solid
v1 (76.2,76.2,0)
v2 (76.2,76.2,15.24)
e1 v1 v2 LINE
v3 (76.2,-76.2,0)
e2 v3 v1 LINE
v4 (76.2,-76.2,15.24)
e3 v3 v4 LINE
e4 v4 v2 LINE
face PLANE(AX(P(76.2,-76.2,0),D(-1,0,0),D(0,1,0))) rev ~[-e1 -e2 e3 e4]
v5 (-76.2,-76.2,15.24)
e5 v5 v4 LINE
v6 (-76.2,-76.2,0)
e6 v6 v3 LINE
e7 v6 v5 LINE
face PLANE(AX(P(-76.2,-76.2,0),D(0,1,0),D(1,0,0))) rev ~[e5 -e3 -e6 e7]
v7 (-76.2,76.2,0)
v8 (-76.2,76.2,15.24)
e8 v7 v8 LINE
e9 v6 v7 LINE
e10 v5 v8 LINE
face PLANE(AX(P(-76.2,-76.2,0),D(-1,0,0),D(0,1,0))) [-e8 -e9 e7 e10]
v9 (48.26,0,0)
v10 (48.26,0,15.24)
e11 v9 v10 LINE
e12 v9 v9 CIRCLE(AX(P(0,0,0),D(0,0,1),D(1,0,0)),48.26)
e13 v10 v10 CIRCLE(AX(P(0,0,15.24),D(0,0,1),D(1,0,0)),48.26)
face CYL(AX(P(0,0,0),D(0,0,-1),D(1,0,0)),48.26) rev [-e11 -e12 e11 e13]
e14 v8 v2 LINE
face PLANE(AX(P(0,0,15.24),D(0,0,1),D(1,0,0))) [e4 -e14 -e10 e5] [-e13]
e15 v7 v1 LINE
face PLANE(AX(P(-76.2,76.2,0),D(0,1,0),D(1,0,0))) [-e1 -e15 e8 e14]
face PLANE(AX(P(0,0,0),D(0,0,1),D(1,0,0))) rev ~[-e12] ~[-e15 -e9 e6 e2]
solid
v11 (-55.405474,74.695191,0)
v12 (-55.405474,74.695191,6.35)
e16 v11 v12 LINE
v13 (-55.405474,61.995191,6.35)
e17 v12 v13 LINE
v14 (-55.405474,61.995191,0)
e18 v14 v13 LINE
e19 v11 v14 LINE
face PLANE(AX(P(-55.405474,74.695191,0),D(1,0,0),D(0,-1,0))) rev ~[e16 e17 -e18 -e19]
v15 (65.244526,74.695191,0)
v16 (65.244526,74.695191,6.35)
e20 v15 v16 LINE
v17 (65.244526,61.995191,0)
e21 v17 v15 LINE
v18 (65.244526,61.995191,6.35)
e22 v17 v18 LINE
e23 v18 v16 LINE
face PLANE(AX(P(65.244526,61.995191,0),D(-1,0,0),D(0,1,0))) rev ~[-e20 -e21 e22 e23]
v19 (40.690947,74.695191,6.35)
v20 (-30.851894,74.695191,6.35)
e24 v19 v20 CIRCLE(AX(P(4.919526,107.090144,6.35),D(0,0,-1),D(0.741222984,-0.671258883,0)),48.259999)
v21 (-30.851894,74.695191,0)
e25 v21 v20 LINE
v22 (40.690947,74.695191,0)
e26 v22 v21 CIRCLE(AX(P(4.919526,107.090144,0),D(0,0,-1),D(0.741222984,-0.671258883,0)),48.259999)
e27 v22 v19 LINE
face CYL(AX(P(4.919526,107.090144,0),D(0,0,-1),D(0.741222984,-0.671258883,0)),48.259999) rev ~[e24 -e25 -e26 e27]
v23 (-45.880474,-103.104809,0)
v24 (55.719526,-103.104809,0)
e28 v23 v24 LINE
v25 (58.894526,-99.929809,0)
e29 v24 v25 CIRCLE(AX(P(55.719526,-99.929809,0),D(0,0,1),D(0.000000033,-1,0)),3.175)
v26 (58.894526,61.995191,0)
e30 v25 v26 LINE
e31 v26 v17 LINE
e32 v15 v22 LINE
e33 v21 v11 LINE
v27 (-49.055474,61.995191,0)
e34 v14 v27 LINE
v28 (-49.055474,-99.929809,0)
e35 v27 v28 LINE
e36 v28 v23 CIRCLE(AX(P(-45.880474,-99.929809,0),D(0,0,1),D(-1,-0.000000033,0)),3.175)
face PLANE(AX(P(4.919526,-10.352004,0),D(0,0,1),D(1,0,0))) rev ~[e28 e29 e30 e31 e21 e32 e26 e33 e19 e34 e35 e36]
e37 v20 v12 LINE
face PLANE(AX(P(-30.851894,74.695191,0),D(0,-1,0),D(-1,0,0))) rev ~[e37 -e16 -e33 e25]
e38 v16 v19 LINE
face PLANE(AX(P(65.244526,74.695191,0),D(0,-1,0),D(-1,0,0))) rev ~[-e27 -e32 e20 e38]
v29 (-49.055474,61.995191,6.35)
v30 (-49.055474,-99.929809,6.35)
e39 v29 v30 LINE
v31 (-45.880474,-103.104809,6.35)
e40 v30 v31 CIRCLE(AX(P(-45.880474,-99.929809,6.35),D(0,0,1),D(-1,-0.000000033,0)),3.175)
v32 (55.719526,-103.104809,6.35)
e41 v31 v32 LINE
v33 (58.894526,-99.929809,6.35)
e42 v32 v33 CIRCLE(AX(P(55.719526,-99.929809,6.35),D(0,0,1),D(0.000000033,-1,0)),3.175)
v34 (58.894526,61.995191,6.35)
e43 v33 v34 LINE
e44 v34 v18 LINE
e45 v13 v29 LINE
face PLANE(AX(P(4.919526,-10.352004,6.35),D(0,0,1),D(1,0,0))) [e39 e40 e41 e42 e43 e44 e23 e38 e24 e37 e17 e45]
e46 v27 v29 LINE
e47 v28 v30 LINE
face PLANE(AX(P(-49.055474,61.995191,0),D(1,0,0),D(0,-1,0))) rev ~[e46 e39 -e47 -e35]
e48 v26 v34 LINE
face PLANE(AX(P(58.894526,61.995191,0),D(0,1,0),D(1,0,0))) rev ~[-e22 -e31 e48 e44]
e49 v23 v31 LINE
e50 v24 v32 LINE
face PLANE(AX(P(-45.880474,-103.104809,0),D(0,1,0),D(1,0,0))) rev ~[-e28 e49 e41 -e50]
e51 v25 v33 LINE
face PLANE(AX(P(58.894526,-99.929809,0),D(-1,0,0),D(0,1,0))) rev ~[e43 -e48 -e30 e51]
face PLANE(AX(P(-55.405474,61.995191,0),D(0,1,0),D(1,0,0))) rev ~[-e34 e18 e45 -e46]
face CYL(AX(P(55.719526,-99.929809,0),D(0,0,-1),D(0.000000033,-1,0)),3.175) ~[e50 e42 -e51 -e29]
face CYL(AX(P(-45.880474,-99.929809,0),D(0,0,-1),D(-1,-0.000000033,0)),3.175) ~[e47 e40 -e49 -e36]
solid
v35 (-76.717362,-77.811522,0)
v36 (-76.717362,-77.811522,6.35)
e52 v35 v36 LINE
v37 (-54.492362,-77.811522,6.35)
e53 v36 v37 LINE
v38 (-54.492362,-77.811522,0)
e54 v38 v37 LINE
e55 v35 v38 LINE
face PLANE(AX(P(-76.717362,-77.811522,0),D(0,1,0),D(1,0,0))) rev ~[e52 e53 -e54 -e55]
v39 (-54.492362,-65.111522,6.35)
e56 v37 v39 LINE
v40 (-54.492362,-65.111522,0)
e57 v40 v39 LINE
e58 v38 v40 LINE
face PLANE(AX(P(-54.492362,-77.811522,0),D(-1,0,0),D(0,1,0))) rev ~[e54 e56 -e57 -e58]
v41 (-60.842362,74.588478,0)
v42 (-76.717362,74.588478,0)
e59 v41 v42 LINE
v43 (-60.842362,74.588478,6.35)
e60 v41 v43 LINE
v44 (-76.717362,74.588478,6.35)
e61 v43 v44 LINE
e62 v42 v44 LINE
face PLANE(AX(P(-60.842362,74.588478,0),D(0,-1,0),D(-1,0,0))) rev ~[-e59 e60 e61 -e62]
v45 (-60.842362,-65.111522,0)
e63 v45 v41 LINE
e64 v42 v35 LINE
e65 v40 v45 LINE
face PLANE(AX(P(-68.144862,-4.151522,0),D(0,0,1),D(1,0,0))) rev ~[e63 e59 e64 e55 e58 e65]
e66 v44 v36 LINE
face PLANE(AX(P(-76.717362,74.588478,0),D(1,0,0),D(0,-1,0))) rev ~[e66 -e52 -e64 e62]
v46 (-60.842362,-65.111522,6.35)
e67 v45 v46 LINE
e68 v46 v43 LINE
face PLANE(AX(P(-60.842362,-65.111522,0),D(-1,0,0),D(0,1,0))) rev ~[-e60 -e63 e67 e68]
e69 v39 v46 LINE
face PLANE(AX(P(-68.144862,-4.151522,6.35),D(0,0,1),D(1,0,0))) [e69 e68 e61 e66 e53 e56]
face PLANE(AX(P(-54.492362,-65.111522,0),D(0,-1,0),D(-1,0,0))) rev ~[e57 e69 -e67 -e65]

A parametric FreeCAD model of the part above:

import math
import FreeCAD as App
import Part
import Sketcher
Q = App.Units.Quantity


def add_polygon(sketch, points):
    """Adds a closed chain of lines whose ends are joined by coincident constraints."""
    first, n = sketch.GeometryCount, len(points)
    for a, b in zip(points, points[1:] + points[:1]):
        sketch.addGeometry(Part.LineSegment(App.Vector(*a, 0), App.Vector(*b, 0)), False)
    for i in range(n):
        sketch.addConstraint(Sketcher.Constraint("Coincident", first + i, 2, first + (i + 1) % n, 1))

doc = App.newDocument("Part")
body = doc.addObject("PartDesign::Body", "Body")

# Sketch on XY plane
sketch1 = doc.addObject("Sketcher::SketchObject", "Sketch")
body.addObject(sketch1)
sketch1.AttachmentSupport = (doc.XY_Plane, [""])
sketch1.MapMode = "FlatFace"
add_polygon(sketch1, [(-76, 76), (-76, -76), (76, -76), (76, 76)])  # lines 0-3
sketch1.addGeometry(Part.Circle(App.Vector(0, 0, 0), App.Vector(0, 0, 1), 48), False)  # 4
sketch1.addConstraint([
    Sketcher.Constraint("Vertical", 0),
    Sketcher.Constraint("Horizontal", 1),
    Sketcher.Constraint("Vertical", 2),
    Sketcher.Constraint("Horizontal", 3),
    Sketcher.Constraint("Coincident", 4, 3, -1, 1),
    Sketcher.Constraint("Symmetric", 0, 2, 2, 2, -1, 1),
    Sketcher.Constraint("Equal", 3, 0),
    Sketcher.Constraint("Diameter", 4, Q("3.8 in")),
    Sketcher.Constraint("DistanceX", 1, 1, 1, 2, Q("6 in")),
])
pad1 = doc.addObject("PartDesign::Pad", "Pad")
body.addObject(pad1)
pad1.Profile = sketch1
pad1.Length = Q("0.6 in")
body2 = doc.addObject("PartDesign::Body", "Body001")

# Sketch on XY plane
sketch2 = doc.addObject("Sketcher::SketchObject", "Sketch001")
body2.addObject(sketch2)
sketch2.AttachmentSupport = (doc.getObject("XY_Plane001"), [""])
sketch2.MapMode = "FlatFace"
sketch2.addGeometry([
    Part.LineSegment(App.Vector(-30.9, 74.7, 0), App.Vector(-55.4, 74.7, 0)),  # 0
    Part.LineSegment(App.Vector(-55.4, 74.7, 0), App.Vector(-55.4, 62, 0)),  # 1
    Part.LineSegment(App.Vector(-55.4, 62, 0), App.Vector(-49.1, 62, 0)),  # 2
    Part.LineSegment(App.Vector(-49.1, 62, 0), App.Vector(-49.1, -99.9, 0)),  # 3
    Part.ArcOfCircle(Part.Circle(App.Vector(-45.9, -99.9, 0), App.Vector(0, 0, 1), 3.2), math.radians(-180), math.radians(-90)),  # 4
    Part.LineSegment(App.Vector(-45.9, -103.1, 0), App.Vector(55.7, -103.1, 0)),  # 5
    Part.ArcOfCircle(Part.Circle(App.Vector(55.7, -99.9, 0), App.Vector(0, 0, 1), 3.2), math.radians(-90), math.radians(0)),  # 6
    Part.LineSegment(App.Vector(58.9, -99.9, 0), App.Vector(58.9, 62, 0)),  # 7
    Part.LineSegment(App.Vector(58.9, 62, 0), App.Vector(65.2, 62, 0)),  # 8
    Part.LineSegment(App.Vector(65.2, 62, 0), App.Vector(65.2, 74.7, 0)),  # 9
    Part.LineSegment(App.Vector(65.2, 74.7, 0), App.Vector(40.7, 74.7, 0)),  # 10
    Part.ArcOfCircle(Part.Circle(App.Vector(4.9, 107.1, 0), App.Vector(0, 0, 1), 48.3), math.radians(-138), math.radians(-42)),  # 11
], False)
sketch2.addConstraint([
    Sketcher.Constraint("Coincident", 0, 2, 1, 1),
    Sketcher.Constraint("Coincident", 1, 2, 2, 1),
    Sketcher.Constraint("Coincident", 2, 2, 3, 1),
    Sketcher.Constraint("Tangent", 3, 2, 4, 1),
    Sketcher.Constraint("Tangent", 4, 2, 5, 1),
    Sketcher.Constraint("Tangent", 5, 2, 6, 1),
    Sketcher.Constraint("Tangent", 6, 2, 7, 1),
    Sketcher.Constraint("Coincident", 7, 2, 8, 1),
    Sketcher.Constraint("Coincident", 8, 2, 9, 1),
    Sketcher.Constraint("Coincident", 9, 2, 10, 1),
    Sketcher.Constraint("Coincident", 10, 2, 11, 2),
    Sketcher.Constraint("Coincident", 11, 1, 0, 1),
    Sketcher.Constraint("Horizontal", 0),
    Sketcher.Constraint("Vertical", 1),
    Sketcher.Constraint("Horizontal", 2),
    Sketcher.Constraint("Vertical", 3),
    Sketcher.Constraint("Horizontal", 5),
    Sketcher.Constraint("Vertical", 7),
    Sketcher.Constraint("Horizontal", 8),
    Sketcher.Constraint("Vertical", 9),
    Sketcher.Constraint("Horizontal", 10),
    Sketcher.Constraint("Equal", 4, 6),
    Sketcher.Constraint("Horizontal", 2, 2, 7, 2),
    Sketcher.Constraint("Horizontal", 0, 2, 9, 2),
    Sketcher.Constraint("Equal", 2, 8),
    Sketcher.Constraint("Equal", 0, 10),
    Sketcher.Constraint("Radius", 11, Q("1.9 in")),
    Sketcher.Constraint("DistanceX", 5, 1, 5, 2, Q("4 in")),
    Sketcher.Constraint("DistanceY", 1, 2, 1, 1, Q("0.5 in")),
    Sketcher.Constraint("Radius", 4, Q("0.125 in")),
    Sketcher.Constraint("DistanceX", 2, 1, 2, 2, Q("0.25 in")),
    Sketcher.Constraint("DistanceY", 4, 2, 2, 2, Q("6.5 in")),
    Sketcher.Constraint("DistanceX", 0, 2, 0, 1, 24.55358),
    Sketcher.Constraint("DistanceY", 4, 3, -1, 1, 99.929809),
    Sketcher.Constraint("DistanceX", 4, 3, -1, 1, 45.880474),
])
pad2 = doc.addObject("PartDesign::Pad", "Pad001")
body2.addObject(pad2)
pad2.Profile = sketch2
pad2.Length = Q("0.25 in")
body3 = doc.addObject("PartDesign::Body", "Body002")

# Sketch on XY plane
sketch3 = doc.addObject("Sketcher::SketchObject", "Sketch002")
body3.addObject(sketch3)
sketch3.AttachmentSupport = (doc.getObject("XY_Plane002"), [""])
sketch3.MapMode = "FlatFace"
add_polygon(sketch3, [(-61, 75), (-77, 75), (-77, -78), (-54, -78), (-54, -65), (-61, -65)])  # lines 0-5
sketch3.addConstraint([
    Sketcher.Constraint("Horizontal", 0),
    Sketcher.Constraint("Vertical", 1),
    Sketcher.Constraint("Horizontal", 2),
    Sketcher.Constraint("Vertical", 3),
    Sketcher.Constraint("Horizontal", 4),
    Sketcher.Constraint("Vertical", 5),
    Sketcher.Constraint("DistanceY", 1, 2, 1, 1, Q("6 in")),
    Sketcher.Constraint("DistanceY", 3, 1, 3, 2, Q("0.5 in")),
    Sketcher.Constraint("DistanceX", 4, 2, 4, 1, Q("0.25 in")),
    Sketcher.Constraint("DistanceX", 0, 2, 0, 1, Q("0.625 in")),
    Sketcher.Constraint("DistanceX", 0, 2, -1, 1, 76.717362),
    Sketcher.Constraint("DistanceY", 1, 2, -1, 1, 77.811522),
])
pad3 = doc.addObject("PartDesign::Pad", "Pad002")
body3.addObject(pad3)
pad3.Profile = sketch3
pad3.Length = Q("0.25 in")

doc.recompute()
